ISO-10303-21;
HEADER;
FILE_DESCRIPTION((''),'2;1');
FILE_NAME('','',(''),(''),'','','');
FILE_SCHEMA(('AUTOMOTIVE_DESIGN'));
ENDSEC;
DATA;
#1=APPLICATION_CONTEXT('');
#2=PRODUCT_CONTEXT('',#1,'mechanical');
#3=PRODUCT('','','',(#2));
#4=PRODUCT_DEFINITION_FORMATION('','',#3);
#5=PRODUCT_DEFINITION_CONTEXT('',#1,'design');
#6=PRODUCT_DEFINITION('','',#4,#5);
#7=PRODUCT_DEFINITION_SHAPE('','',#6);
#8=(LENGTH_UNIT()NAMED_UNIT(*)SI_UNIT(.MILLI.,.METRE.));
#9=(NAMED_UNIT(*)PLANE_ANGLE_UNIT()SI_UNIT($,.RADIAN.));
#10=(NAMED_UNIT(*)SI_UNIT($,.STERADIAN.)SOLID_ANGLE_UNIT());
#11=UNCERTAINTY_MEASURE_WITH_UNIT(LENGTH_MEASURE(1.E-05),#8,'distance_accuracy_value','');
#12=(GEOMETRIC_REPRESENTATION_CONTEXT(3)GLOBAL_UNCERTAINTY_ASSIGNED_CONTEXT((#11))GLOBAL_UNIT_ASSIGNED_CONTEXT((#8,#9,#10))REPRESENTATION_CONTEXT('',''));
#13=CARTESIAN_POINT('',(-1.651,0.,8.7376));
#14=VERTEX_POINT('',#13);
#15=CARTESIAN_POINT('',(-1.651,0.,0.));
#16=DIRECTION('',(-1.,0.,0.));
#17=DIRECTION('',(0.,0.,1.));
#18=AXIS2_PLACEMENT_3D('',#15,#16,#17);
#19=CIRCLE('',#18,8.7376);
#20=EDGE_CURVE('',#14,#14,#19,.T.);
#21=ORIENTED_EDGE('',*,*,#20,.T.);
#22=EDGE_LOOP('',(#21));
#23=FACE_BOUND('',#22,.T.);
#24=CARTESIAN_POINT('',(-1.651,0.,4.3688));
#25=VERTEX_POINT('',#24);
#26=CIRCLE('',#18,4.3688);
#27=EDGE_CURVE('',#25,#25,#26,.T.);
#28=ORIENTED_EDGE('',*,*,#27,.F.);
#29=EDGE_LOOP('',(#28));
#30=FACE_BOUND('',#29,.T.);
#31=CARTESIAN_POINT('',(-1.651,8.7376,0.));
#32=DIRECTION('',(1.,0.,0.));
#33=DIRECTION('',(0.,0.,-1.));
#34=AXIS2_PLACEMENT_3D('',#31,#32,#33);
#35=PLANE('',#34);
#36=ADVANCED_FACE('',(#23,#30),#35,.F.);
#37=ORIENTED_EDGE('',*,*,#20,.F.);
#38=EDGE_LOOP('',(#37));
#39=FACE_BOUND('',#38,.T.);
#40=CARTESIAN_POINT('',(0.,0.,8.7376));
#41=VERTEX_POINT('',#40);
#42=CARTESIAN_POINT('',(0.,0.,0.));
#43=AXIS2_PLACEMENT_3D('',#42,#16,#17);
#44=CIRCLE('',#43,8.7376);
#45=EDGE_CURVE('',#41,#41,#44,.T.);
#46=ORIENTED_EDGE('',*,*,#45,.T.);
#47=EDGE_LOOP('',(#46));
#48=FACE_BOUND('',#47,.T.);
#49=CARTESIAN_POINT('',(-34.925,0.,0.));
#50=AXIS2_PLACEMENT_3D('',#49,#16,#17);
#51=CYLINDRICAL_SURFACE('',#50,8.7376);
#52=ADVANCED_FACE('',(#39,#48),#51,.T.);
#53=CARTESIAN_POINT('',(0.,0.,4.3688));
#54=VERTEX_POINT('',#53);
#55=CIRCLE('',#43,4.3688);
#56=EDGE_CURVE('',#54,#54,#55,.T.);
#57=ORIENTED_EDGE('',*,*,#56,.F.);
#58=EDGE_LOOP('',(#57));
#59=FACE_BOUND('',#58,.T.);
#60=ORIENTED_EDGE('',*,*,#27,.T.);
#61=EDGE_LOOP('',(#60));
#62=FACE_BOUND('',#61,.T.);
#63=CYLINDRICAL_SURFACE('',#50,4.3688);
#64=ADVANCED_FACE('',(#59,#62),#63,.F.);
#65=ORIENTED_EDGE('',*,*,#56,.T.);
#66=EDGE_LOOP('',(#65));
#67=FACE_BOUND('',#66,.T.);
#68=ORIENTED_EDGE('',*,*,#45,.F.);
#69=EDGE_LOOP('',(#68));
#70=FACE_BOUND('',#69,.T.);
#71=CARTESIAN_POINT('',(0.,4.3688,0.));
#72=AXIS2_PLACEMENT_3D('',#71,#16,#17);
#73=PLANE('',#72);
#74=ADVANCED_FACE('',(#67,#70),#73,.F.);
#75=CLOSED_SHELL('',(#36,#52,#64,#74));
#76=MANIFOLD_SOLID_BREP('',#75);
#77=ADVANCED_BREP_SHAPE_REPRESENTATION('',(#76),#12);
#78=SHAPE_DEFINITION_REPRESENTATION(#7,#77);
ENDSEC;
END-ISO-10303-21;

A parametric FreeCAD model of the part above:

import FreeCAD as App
import Part
import Sketcher

V = App.Vector
Q = App.Units.Quantity


def add_polygon(sketch, points):
    """Adds a closed chain of lines whose ends are joined by coincident constraints."""
    first, n = sketch.GeometryCount, len(points)
    for a, b in zip(points, points[1:] + points[:1]):
        sketch.addGeometry(Part.LineSegment(App.Vector(*a, 0), App.Vector(*b, 0)), False)
    for i in range(n):
        sketch.addConstraint(Sketcher.Constraint("Coincident", first + i, 2, first + (i + 1) % n, 1))

doc = App.newDocument("Part")
body = doc.addObject("PartDesign::Body", "Body")

# Sketch on XY plane
sketch1 = doc.addObject("Sketcher::SketchObject", "Sketch")
body.addObject(sketch1)
sketch1.AttachmentSupport = (doc.XY_Plane, [""])
sketch1.MapMode = "FlatFace"
add_polygon(sketch1, [(-1.7, 8.7), (-1.7, 4.4), (0, 4.4), (0, 8.7)])  # lines 0-3
sketch1.addConstraint([
    Sketcher.Constraint("Vertical", 0),
    Sketcher.Constraint("Horizontal", 1),
    Sketcher.Constraint("Vertical", 2),
    Sketcher.Constraint("Horizontal", 3),
    Sketcher.Constraint("PointOnObject", 1, 2, -2),
    Sketcher.Constraint("DistanceX", 1, 1, 1, 2, Q("0.065 in")),
    Sketcher.Constraint("DistanceY", 0, 2, 0, 1, Q("0.172 in")),
    Sketcher.Constraint("DistanceY", -1, 1, 0, 2, Q("0.172 in")),
])
revolution = doc.addObject("PartDesign::Revolution", "Revolution")
body.addObject(revolution)
revolution.Profile = sketch1
revolution.ReferenceAxis = (sketch1, ["H_Axis"])
revolution.Angle = 360

doc.recompute()
